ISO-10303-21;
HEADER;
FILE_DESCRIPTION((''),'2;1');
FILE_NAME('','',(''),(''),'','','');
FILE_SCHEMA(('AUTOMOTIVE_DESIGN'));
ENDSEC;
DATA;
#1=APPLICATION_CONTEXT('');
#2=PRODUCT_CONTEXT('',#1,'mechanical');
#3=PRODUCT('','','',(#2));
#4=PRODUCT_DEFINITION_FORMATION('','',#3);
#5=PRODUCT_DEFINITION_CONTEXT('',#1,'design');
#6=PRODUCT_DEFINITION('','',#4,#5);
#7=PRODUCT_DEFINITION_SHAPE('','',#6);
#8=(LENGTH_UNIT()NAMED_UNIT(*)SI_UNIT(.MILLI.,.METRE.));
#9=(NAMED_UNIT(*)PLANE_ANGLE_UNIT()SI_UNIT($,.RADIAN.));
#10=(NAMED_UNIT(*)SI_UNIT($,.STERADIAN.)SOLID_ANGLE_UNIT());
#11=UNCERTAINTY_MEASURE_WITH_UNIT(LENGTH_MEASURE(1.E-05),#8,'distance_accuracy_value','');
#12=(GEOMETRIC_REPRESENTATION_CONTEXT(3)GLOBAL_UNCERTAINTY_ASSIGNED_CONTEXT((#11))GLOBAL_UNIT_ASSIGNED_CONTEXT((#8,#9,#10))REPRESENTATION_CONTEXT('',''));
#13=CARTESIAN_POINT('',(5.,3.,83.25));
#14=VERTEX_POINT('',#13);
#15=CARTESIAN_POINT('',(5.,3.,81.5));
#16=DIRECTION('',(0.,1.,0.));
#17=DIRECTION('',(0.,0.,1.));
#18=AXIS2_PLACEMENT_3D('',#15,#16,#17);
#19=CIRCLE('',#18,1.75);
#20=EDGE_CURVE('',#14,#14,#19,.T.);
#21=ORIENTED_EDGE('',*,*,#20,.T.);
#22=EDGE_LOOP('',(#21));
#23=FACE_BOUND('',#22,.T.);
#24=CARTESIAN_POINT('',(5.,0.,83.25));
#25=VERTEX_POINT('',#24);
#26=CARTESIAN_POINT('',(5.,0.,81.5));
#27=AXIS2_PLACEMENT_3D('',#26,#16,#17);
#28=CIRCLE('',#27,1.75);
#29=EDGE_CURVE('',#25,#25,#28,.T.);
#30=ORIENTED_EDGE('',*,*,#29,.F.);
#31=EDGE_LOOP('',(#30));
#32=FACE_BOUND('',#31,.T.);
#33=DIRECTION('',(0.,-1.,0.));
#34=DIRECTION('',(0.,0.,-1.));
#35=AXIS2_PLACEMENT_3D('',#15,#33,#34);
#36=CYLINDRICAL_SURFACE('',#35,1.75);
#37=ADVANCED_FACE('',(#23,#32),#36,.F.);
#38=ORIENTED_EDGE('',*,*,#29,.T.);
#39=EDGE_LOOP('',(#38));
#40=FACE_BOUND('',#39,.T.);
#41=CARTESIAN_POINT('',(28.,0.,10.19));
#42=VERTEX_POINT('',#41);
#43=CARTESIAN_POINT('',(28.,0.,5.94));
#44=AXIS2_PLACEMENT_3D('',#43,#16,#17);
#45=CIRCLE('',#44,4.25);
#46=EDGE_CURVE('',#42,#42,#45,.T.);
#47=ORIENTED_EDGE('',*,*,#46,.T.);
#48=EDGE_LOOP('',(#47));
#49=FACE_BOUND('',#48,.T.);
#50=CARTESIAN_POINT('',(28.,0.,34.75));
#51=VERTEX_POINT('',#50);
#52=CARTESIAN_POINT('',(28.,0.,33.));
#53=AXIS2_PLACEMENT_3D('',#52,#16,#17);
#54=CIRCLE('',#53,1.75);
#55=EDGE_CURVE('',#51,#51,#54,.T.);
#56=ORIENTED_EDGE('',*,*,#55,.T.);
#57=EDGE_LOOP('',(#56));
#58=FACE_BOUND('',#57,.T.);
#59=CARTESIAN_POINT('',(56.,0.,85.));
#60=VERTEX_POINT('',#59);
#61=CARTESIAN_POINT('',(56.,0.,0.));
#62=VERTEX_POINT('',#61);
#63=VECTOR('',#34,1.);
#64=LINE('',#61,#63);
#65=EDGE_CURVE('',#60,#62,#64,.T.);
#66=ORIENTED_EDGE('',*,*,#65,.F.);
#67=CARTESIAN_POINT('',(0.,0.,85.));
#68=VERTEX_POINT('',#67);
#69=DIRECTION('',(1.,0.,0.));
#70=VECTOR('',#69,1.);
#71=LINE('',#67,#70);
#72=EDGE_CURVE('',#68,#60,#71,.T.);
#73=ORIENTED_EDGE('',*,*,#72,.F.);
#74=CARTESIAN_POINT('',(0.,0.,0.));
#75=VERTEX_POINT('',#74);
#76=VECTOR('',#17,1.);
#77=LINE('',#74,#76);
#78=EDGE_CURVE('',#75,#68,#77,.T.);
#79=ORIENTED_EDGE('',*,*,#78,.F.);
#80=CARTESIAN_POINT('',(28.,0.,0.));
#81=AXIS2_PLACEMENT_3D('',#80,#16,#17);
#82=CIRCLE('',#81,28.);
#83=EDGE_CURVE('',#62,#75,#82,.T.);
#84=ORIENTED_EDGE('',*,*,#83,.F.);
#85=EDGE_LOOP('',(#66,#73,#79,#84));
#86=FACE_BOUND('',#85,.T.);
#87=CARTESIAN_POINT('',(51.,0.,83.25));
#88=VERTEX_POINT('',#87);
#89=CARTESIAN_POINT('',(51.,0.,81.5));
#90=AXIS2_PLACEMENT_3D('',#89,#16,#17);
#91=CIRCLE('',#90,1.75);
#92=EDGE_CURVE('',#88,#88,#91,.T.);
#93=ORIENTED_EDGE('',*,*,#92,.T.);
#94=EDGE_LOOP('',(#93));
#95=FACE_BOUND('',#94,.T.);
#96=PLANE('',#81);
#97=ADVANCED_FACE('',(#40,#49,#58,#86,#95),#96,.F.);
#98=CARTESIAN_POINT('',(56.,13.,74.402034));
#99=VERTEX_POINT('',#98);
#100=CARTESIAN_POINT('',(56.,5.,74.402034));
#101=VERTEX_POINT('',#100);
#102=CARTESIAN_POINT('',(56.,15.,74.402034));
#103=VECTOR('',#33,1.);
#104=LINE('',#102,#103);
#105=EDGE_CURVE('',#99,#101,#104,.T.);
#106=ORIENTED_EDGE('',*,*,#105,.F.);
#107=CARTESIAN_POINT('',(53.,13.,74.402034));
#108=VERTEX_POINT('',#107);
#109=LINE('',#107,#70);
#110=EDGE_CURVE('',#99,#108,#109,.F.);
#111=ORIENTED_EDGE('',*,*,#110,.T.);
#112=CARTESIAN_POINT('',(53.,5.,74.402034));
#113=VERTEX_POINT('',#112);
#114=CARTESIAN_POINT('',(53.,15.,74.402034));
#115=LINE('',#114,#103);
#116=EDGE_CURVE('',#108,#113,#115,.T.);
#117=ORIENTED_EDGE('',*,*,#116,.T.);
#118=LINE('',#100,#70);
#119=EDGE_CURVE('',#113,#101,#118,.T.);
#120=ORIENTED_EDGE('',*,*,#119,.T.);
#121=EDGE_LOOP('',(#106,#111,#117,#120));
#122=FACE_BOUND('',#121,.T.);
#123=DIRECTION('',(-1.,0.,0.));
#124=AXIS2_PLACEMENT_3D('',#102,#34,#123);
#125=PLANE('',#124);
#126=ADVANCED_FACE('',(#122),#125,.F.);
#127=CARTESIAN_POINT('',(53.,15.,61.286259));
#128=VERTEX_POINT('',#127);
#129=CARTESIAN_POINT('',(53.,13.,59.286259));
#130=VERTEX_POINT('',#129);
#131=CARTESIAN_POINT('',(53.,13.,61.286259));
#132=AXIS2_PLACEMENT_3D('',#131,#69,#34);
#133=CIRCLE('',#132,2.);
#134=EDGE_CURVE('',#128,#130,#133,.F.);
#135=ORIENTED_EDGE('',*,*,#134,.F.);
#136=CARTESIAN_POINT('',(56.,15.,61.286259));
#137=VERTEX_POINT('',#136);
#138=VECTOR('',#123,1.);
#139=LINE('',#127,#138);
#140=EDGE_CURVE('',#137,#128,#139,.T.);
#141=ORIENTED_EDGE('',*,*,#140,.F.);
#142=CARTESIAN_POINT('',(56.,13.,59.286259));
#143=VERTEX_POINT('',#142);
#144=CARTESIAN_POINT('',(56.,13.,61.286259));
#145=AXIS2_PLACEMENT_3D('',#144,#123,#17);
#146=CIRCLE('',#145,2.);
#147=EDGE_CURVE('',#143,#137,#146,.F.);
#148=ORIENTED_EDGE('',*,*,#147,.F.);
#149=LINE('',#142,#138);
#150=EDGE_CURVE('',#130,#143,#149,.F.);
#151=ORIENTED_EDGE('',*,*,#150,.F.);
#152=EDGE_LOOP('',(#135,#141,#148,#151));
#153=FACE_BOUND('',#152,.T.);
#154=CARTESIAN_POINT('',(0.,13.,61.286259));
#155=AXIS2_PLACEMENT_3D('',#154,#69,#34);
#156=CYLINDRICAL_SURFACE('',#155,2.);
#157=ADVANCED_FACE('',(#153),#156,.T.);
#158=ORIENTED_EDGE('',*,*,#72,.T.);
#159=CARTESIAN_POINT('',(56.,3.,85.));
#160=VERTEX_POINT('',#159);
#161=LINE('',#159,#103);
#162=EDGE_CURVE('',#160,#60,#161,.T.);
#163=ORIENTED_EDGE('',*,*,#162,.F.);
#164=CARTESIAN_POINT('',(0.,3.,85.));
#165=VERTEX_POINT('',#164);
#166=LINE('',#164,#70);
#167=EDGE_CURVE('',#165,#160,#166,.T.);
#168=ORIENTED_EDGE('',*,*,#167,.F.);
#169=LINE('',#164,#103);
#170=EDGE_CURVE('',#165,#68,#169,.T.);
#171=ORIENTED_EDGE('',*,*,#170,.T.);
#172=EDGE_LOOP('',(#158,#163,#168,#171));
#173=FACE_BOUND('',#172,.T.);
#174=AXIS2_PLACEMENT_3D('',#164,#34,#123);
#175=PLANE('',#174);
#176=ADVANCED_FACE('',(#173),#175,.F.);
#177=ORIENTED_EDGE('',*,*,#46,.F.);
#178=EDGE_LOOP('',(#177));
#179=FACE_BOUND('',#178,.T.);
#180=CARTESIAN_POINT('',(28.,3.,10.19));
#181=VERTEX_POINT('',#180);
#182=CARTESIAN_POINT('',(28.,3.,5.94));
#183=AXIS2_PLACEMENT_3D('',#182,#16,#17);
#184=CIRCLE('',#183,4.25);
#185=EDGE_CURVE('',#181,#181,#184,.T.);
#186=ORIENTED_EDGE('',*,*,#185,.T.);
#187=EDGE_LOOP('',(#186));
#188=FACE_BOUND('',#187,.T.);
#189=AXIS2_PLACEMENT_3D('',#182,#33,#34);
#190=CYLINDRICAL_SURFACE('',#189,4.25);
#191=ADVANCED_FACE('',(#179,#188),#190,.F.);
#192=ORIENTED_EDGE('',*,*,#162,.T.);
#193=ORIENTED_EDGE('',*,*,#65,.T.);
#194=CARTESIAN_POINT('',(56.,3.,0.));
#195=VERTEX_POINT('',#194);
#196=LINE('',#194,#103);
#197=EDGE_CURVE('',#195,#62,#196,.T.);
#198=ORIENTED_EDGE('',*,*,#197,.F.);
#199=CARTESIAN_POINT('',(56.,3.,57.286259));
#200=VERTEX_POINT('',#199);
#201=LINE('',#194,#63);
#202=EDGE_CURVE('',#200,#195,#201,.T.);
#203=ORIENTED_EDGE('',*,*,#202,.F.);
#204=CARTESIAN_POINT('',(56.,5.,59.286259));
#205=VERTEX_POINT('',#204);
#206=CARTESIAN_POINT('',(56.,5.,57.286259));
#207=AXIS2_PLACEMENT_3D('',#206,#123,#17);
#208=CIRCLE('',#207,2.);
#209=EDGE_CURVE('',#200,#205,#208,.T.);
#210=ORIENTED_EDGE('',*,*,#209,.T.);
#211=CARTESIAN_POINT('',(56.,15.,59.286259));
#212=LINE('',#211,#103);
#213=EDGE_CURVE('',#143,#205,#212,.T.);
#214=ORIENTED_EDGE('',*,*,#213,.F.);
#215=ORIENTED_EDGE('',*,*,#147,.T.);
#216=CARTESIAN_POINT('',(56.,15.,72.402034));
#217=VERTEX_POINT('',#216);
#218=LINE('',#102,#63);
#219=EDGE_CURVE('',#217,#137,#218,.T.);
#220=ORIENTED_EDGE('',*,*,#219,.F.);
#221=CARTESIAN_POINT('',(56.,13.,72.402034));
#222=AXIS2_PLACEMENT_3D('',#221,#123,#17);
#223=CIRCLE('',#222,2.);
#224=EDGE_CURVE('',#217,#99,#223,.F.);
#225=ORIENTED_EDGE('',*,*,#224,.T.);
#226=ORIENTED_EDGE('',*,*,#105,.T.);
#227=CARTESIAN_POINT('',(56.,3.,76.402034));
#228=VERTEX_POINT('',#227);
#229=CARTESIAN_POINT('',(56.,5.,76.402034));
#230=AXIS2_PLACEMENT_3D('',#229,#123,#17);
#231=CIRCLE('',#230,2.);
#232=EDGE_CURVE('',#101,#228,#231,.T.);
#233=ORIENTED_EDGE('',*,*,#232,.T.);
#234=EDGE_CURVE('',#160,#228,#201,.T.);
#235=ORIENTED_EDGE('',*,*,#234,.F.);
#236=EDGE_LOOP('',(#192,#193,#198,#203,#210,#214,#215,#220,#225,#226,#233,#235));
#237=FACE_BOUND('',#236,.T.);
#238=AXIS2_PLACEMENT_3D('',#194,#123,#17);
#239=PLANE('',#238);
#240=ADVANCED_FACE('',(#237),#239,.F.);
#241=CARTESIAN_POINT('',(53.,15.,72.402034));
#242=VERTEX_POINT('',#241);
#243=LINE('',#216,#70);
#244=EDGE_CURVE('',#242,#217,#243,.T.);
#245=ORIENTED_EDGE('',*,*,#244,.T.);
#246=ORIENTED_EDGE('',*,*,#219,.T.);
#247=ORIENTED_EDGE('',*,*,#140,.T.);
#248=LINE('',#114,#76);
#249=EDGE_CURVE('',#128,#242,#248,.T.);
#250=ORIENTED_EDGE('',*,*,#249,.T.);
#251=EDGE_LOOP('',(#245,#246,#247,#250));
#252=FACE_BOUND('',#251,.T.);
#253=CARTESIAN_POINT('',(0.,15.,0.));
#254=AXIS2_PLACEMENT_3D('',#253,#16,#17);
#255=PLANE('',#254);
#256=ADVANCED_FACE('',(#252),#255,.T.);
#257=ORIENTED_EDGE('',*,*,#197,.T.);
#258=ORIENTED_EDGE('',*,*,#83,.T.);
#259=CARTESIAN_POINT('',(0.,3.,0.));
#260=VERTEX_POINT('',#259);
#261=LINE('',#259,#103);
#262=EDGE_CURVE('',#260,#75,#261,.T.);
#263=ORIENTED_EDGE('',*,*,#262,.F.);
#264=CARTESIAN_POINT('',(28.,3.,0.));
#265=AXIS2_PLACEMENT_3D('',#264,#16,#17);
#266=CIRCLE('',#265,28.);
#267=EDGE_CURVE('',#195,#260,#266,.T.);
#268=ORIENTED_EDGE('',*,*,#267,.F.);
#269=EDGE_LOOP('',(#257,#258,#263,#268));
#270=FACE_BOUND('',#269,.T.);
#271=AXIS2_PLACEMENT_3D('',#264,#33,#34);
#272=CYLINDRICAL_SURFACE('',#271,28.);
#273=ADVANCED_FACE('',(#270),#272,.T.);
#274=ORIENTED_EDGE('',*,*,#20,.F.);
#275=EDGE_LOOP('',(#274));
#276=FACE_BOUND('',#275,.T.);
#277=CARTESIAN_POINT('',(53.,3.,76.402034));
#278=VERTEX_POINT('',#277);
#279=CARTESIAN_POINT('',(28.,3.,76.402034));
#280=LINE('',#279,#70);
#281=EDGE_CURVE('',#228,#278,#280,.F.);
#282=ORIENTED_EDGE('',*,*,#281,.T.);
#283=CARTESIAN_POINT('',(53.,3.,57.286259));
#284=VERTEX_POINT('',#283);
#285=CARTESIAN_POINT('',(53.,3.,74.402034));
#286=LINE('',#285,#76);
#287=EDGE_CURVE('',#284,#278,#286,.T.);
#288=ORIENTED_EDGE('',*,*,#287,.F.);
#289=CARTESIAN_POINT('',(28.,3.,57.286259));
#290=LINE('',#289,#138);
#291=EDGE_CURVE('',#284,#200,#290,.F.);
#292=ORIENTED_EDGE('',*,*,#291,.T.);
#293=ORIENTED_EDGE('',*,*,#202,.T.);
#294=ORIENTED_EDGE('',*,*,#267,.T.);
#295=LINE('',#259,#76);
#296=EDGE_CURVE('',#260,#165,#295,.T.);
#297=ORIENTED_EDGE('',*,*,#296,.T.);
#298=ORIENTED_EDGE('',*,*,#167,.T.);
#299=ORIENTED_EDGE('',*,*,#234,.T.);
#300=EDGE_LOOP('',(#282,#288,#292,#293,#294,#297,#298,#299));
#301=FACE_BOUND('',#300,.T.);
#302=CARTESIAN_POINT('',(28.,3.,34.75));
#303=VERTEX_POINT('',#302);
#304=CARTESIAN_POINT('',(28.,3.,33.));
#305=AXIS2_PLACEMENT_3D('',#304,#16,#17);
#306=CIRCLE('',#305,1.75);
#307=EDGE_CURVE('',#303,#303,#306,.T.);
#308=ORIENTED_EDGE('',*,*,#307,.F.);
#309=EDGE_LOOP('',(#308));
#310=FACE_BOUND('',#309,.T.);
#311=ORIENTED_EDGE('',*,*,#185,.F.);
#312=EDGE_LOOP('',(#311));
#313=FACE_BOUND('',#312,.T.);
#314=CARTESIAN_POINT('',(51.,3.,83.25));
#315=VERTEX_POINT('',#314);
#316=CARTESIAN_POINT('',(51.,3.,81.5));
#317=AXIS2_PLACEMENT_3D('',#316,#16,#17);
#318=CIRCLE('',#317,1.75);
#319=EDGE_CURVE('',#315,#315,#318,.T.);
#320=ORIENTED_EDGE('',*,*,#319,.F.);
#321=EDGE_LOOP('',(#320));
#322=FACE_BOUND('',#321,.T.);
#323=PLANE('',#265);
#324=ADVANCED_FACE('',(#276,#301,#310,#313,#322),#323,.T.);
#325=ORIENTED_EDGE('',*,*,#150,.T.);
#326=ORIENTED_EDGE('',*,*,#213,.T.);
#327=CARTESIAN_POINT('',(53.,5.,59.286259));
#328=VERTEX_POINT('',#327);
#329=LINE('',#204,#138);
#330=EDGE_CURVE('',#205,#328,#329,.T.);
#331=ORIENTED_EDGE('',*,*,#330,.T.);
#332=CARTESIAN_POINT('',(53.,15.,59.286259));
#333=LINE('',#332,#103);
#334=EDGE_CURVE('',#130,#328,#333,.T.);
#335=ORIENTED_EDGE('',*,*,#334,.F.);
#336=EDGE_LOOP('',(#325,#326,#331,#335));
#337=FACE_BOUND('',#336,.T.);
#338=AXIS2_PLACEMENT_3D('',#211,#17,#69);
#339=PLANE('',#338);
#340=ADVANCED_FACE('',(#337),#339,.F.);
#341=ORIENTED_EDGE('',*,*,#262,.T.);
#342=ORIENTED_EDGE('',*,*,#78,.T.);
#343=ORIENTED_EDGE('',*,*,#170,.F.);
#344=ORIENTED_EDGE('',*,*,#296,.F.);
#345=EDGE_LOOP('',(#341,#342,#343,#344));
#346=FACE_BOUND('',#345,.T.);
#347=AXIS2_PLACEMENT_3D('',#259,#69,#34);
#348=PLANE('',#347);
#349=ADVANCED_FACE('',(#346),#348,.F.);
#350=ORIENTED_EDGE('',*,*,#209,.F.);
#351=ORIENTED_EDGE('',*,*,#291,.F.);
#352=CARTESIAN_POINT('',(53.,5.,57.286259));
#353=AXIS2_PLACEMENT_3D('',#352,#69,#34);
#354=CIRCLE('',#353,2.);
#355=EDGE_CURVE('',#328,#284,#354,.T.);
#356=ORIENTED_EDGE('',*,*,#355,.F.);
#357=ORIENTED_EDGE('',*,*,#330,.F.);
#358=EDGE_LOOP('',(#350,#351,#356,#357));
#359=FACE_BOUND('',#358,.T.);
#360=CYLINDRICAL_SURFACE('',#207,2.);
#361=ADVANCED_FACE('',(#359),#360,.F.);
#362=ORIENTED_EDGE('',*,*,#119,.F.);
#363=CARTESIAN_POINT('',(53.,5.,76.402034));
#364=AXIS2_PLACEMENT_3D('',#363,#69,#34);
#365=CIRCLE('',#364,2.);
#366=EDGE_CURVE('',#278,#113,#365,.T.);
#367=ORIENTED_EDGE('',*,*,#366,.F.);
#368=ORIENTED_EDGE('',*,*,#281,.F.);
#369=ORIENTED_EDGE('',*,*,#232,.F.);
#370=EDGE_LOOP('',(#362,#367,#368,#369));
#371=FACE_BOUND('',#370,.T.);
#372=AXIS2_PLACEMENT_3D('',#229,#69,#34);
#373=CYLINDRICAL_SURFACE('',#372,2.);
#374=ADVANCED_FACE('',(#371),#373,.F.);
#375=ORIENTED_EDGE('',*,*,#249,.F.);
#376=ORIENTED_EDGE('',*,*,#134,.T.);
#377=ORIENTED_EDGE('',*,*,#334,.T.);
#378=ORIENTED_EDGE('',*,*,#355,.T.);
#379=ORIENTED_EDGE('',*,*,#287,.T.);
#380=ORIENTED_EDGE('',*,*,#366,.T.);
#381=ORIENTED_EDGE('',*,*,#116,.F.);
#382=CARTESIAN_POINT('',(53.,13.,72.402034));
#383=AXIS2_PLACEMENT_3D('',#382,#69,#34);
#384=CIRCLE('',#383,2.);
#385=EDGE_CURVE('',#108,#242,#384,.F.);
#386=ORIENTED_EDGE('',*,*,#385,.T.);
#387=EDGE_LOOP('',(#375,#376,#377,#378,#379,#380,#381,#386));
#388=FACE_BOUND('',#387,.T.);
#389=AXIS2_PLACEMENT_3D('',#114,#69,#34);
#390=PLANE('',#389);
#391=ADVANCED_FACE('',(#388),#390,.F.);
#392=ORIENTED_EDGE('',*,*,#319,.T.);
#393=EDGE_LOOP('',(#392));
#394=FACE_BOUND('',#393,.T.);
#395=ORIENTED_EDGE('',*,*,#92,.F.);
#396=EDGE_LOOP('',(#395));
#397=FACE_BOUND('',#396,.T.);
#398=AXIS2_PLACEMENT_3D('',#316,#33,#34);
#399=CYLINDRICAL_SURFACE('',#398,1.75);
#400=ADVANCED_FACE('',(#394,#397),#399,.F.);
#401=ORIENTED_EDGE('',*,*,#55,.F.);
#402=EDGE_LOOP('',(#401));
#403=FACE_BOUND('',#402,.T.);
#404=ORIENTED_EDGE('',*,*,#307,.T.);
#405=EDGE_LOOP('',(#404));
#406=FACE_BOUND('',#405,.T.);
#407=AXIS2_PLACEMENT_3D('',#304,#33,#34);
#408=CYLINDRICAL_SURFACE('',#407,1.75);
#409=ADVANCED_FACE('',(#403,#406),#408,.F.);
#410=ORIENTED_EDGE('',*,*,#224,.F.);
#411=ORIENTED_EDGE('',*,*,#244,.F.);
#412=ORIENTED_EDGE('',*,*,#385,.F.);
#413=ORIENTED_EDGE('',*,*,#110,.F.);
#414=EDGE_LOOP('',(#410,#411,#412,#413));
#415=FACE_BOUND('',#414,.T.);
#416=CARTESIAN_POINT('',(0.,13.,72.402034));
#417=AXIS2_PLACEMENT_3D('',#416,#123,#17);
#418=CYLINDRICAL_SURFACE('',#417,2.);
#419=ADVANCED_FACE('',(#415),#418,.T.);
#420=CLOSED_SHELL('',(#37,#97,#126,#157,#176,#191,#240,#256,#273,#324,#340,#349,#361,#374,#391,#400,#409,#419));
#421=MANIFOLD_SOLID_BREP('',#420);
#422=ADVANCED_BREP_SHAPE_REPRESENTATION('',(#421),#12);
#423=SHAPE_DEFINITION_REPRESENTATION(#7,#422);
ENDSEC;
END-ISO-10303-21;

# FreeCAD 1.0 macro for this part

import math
import FreeCAD as App
import Part
import Sketcher

V = App.Vector


def edges_at(feature, points):
    """Names of the edges that pass closest to the given points."""
    edges = feature.Shape.Edges
    near = lambda p: min(range(len(edges)), key=lambda i: edges[i].distToShape(Part.Vertex(*p))[0])
    return sorted({f"Edge{near(p) + 1}" for p in points})

doc = App.newDocument("Part")
body = doc.addObject("PartDesign::Body", "Body")

# Sketch on XZ plane
sketch1 = body.newObject("Sketcher::SketchObject", "Sketch")
sketch1.AttachmentSupport = (doc.getObject("XZ_Plane"), [""])
sketch1.MapMode = "FlatFace"
sketch1.addGeometry([
    Part.LineSegment(V(0, 0, 0), V(0, 85, 0)),  # 0
    Part.LineSegment(V(0, 85, 0), V(56, 85, 0)),  # 1
    Part.LineSegment(V(56, 85, 0), V(56, 0, 0)),  # 2
    Part.ArcOfCircle(Part.Circle(V(28, 0, 0), V(0, 0, 1), 28), math.radians(180), math.radians(360)),  # 3
    Part.Circle(V(5, 81.5, 0), V(0, 0, 1), 1.8),  # 4
    Part.Circle(V(51, 81.5, 0), V(0, 0, 1), 1.8),  # 5
    Part.Circle(V(28, 33, 0), V(0, 0, 1), 1.8),  # 6
    Part.Circle(V(28, 5.9, 0), V(0, 0, 1), 4.2),  # 7
], False)
sketch1.addConstraint([
    Sketcher.Constraint("Coincident", 0, 2, 1, 1),
    Sketcher.Constraint("Coincident", 1, 2, 2, 1),
    Sketcher.Constraint("Tangent", 2, 2, 3, 2),
    Sketcher.Constraint("Tangent", 3, 1, 0, 1),
    Sketcher.Constraint("Vertical", 0),
    Sketcher.Constraint("Horizontal", 1),
    Sketcher.Constraint("Vertical", 2),
    Sketcher.Constraint("Coincident", 3, 1, -1, 1),
    Sketcher.Constraint("Equal", 4, 5),
    Sketcher.Constraint("Equal", 5, 6),
    Sketcher.Constraint("Horizontal", 4, 3, 5, 3),
    Sketcher.Constraint("Vertical", 3, 3, 6, 3),
    Sketcher.Constraint("Vertical", 6, 3, 7, 3),
    Sketcher.Constraint("Radius", 3, 28.0),
    Sketcher.Constraint("Diameter", 4, 3.5),
    Sketcher.Constraint("Diameter", 7, 8.5),
    Sketcher.Constraint("DistanceY", 0, 1, 0, 2, 85.0),
    Sketcher.Constraint("DistanceX", -1, 1, 4, 3, 5.0),
    Sketcher.Constraint("DistanceX", -1, 1, 5, 3, 51.0),
    Sketcher.Constraint("DistanceY", -1, 1, 6, 3, 33.0),
    Sketcher.Constraint("DistanceY", -1, 1, 4, 3, 81.5),
    Sketcher.Constraint("DistanceY", -1, 1, 7, 3, 5.94),
])
pad1 = body.newObject("PartDesign::Pad", "Pad")
pad1.Profile = sketch1
pad1.Length = 3
pad1.Reversed = True

# Sketch on XZ plane
sketch2 = body.newObject("Sketcher::SketchObject", "Sketch001")
sketch2.AttachmentSupport = (doc.getObject("XZ_Plane"), [""])
sketch2.MapMode = "FlatFace"
sketch2.AttachmentOffset = App.Placement(V(0, 0, -3), App.Rotation())
sketch2.addGeometry([
    Part.LineSegment(V(53, 59.3, 0), V(53, 74.4, 0)),
    Part.LineSegment(V(53, 74.4, 0), V(56, 74.4, 0)),
    Part.LineSegment(V(56, 74.4, 0), V(56, 59.3, 0)),
    Part.LineSegment(V(56, 59.3, 0), V(53, 59.3, 0)),
], False)
sketch2.addConstraint([
    Sketcher.Constraint("Coincident", 0, 2, 1, 1),
    Sketcher.Constraint("Coincident", 1, 2, 2, 1),
    Sketcher.Constraint("Coincident", 2, 2, 3, 1),
    Sketcher.Constraint("Coincident", 3, 2, 0, 1),
    Sketcher.Constraint("Vertical", 0),
    Sketcher.Constraint("Horizontal", 1),
    Sketcher.Constraint("Vertical", 2),
    Sketcher.Constraint("Horizontal", 3),
    Sketcher.Constraint("DistanceX", 1, 1, 1, 2, 3.0),
    Sketcher.Constraint("DistanceX", -1, 1, 0, 2, 53.0),
    Sketcher.Constraint("DistanceY", 0, 1, 0, 2, 15.115776),
    Sketcher.Constraint("DistanceY", -1, 1, 2, 2, 59.286259),
])
pad2 = body.newObject("PartDesign::Pad", "Pad001")
pad2.Profile = sketch2
pad2.Length = 12
pad2.Reversed = True
doc.recompute()

fillet = body.newObject("PartDesign::Fillet", "Fillet")
fillet.Base = (pad2, edges_at(pad2, [
    (54.5, 3, 59.286),
    (54.5, 3, 74.402),
    (54.5, 15, 59.286),
    (54.5, 15, 74.402),
]))
fillet.Radius = 2

doc.recompute()
